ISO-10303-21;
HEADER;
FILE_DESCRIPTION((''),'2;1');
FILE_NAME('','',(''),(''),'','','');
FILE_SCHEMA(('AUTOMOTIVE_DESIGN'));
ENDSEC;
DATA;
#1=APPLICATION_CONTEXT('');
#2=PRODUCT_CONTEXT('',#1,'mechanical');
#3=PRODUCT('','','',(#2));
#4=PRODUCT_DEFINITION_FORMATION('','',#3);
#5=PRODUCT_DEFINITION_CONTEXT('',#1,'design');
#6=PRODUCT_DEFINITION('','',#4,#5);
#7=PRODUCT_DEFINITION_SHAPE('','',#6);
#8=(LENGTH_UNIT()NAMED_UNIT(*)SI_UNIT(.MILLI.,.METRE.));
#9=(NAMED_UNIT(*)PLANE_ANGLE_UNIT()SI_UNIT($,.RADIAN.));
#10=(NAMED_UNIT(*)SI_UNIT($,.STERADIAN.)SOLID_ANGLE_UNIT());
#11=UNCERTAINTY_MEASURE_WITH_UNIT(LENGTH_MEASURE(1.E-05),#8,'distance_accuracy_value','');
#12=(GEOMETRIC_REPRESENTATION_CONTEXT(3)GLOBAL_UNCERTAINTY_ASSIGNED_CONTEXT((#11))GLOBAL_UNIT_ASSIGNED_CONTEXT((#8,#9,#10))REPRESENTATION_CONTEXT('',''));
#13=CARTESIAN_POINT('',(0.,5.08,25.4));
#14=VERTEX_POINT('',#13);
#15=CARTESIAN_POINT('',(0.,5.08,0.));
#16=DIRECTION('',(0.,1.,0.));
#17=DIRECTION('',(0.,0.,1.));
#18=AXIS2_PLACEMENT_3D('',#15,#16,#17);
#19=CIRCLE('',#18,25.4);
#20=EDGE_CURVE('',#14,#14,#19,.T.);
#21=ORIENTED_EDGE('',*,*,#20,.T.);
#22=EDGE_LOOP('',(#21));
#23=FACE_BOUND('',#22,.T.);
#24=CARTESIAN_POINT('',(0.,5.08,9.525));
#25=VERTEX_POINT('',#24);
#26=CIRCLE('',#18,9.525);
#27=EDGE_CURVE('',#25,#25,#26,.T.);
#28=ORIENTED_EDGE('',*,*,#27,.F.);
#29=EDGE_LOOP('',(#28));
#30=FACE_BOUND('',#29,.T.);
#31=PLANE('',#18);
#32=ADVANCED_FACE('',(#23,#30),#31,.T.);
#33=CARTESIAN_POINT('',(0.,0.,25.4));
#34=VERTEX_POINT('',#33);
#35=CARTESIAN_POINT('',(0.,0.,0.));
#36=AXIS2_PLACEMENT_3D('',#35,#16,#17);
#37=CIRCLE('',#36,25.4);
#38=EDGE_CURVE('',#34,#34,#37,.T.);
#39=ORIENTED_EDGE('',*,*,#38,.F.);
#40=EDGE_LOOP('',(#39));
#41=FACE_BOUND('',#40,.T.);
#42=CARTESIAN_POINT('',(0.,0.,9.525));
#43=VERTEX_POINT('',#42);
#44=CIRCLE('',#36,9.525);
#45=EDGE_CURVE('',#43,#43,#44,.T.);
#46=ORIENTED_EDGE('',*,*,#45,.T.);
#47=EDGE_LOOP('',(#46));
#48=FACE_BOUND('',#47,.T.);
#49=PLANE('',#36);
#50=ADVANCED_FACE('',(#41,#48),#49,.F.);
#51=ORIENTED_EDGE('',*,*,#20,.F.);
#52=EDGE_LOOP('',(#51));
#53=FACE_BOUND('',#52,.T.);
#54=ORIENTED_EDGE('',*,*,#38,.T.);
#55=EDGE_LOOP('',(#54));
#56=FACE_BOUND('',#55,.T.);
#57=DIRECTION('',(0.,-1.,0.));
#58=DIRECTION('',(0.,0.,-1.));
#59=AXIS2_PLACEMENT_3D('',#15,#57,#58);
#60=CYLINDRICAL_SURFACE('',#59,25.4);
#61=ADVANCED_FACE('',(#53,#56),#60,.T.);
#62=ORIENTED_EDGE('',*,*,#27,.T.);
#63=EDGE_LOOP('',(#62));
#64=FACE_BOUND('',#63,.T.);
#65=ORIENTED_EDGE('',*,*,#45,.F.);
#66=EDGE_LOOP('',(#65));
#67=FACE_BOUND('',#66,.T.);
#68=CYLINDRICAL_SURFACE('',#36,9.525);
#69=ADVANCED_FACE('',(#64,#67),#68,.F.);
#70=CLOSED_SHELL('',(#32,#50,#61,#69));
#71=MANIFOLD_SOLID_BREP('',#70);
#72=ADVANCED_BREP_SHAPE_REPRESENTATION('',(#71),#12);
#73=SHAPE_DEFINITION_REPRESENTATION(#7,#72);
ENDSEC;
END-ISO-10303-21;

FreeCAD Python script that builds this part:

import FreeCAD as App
import Part
import Sketcher
from FreeCAD import Vector
Q = App.Units.Quantity

doc = App.newDocument("Part")
params = doc.addObject("Spreadsheet::Sheet", "Params")
for row, (alias, value) in enumerate([
    ("sketch1_diameter", "2 in"),
    ("pad1_length", "0.2 in"),
    ("sketch2_diameter", "0.75 in"),
    ("pocket1_length", "0.2 in"),
], start=1):
    params.set(f"A{row}", alias)
    params.set(f"B{row}", "=" + value)
    params.setAlias(f"B{row}", alias)

body = doc.addObject("PartDesign::Body", "Body")

sketch1 = body.newObject("Sketcher::SketchObject", "Sketch")
sketch1.AttachmentSupport = (doc.getObject("XZ_Plane"), [""])
sketch1.MapMode = "FlatFace"
sketch1.addGeometry(Part.Circle(Vector(0, 0, 0), Vector(0, 0, 1), 25), False)
sketch1.addConstraint([
    Sketcher.Constraint("Coincident", 0, 3, -1, 1),
    Sketcher.Constraint("Diameter", 0, Q("2 in")),
])
sketch1.setExpression("Constraints[1]", "Params.sketch1_diameter")
pad1 = body.newObject("PartDesign::Pad", "Pad")
pad1.Profile = sketch1
pad1.setExpression("Length", "Params.pad1_length")
pad1.Reversed = True

sketch2 = body.newObject("Sketcher::SketchObject", "Sketch001")
sketch2.AttachmentSupport = (doc.getObject("XZ_Plane"), [""])
sketch2.MapMode = "FlatFace"
sketch2.AttachmentOffset = App.Placement(Vector(0, 0, -0.2 * 25.4), App.Rotation())
sketch2.addGeometry(Part.Circle(Vector(0, 0, 0), Vector(0, 0, 1), 10), False)
sketch2.addConstraint([
    Sketcher.Constraint("Coincident", 0, 3, -1, 1),
    Sketcher.Constraint("Diameter", 0, Q("0.75 in")),
])
sketch2.setExpression("Constraints[1]", "Params.sketch2_diameter")
pocket1 = body.newObject("PartDesign::Pocket", "Pocket")
pocket1.Profile = sketch2
pocket1.setExpression("Length", "Params.pocket1_length")
pocket1.Reversed = True

doc.recompute()
